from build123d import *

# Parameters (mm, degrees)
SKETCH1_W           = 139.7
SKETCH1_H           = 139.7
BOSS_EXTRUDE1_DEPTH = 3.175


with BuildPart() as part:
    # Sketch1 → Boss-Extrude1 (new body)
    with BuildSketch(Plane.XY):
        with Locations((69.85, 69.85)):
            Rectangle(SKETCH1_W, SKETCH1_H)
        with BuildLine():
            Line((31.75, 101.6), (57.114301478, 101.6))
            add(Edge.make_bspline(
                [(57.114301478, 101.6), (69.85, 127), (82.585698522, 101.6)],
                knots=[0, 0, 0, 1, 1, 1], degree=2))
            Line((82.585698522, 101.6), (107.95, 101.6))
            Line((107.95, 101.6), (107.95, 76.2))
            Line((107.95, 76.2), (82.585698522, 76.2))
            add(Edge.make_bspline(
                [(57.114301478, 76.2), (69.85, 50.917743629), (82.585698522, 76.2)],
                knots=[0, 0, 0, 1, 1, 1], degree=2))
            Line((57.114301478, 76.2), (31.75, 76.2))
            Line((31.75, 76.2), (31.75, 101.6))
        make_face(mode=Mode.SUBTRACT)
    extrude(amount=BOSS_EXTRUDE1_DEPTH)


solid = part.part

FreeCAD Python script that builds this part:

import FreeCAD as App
import Part
import Sketcher
from FreeCAD import Vector
Q = App.Units.Quantity

doc = App.newDocument("Part")
body = doc.addObject("PartDesign::Body", "Body")

sketch1 = body.newObject("Sketcher::SketchObject", "Sketch")
sketch1.AttachmentSupport = (doc.getObject("XY_Plane"), [""])
sketch1.MapMode = "FlatFace"
sketch1.addGeometry([
    Part.LineSegment(Vector(0, 139.7, 0), Vector(0, 0, 0)),
    Part.LineSegment(Vector(0, 0, 0), Vector(139.7, 0, 0)),
    Part.LineSegment(Vector(139.7, 0, 0), Vector(139.7, 139.7, 0)),
    Part.LineSegment(Vector(139.7, 139.7, 0), Vector(0, 139.7, 0)),
    Part.LineSegment(Vector(31.75, 76.2, 0), Vector(31.75, 101.6, 0)),
    Part.LineSegment(Vector(31.75, 101.6, 0), Vector(57.114301, 101.6, 0)),
    Part.BSplineCurve([Vector(57.114301, 101.6, 0), Vector(69.85, 127, 0), Vector(82.585699, 101.6, 0)], [3, 3], [0, 1], False, 2, [1, 1, 1], False),
    Part.LineSegment(Vector(82.585699, 101.6, 0), Vector(107.95, 101.6, 0)),
    Part.LineSegment(Vector(107.95, 101.6, 0), Vector(107.95, 76.2, 0)),
    Part.LineSegment(Vector(107.95, 76.2, 0), Vector(82.585699, 76.2, 0)),
    Part.BSplineCurve([Vector(57.114301, 76.2, 0), Vector(69.85, 50.917744, 0), Vector(82.585699, 76.2, 0)], [3, 3], [0, 1], False, 2, [1, 1, 1], False),
    Part.LineSegment(Vector(57.114301, 76.2, 0), Vector(31.75, 76.2, 0)),
], False)
sketch1.addConstraint([
    Sketcher.Constraint("Block", 6),
    Sketcher.Constraint("Block", 10),
    Sketcher.Constraint("Coincident", 0, 2, 1, 1),
    Sketcher.Constraint("Coincident", 1, 2, 2, 1),
    Sketcher.Constraint("Coincident", 2, 2, 3, 1),
    Sketcher.Constraint("Coincident", 3, 2, 0, 1),
    Sketcher.Constraint("Coincident", 4, 2, 5, 1),
    Sketcher.Constraint("Coincident", 5, 2, 6, 1),
    Sketcher.Constraint("Coincident", 6, 2, 7, 1),
    Sketcher.Constraint("Coincident", 7, 2, 8, 1),
    Sketcher.Constraint("Coincident", 8, 2, 9, 1),
    Sketcher.Constraint("Coincident", 9, 2, 10, 2),
    Sketcher.Constraint("Coincident", 10, 1, 11, 1),
    Sketcher.Constraint("Coincident", 11, 2, 4, 1),
    Sketcher.Constraint("Vertical", 0),
    Sketcher.Constraint("Horizontal", 1),
    Sketcher.Constraint("Vertical", 2),
    Sketcher.Constraint("Horizontal", 3),
    Sketcher.Constraint("Vertical", 4),
    Sketcher.Constraint("Horizontal", 5),
    Sketcher.Constraint("Horizontal", 7),
    Sketcher.Constraint("Vertical", 8),
    Sketcher.Constraint("Horizontal", 9),
    Sketcher.Constraint("Horizontal", 11),
    Sketcher.Constraint("Coincident", 0, 2, -1, 1),
    Sketcher.Constraint("Equal", 5, 7),
    Sketcher.Constraint("Equal", 3, 0),
    Sketcher.Constraint("DistanceX", 1, 1, 1, 2, Q("5.5 in")),
    Sketcher.Constraint("DistanceX", 4, 2, 7, 2, Q("3 in")),
])
pad1 = body.newObject("PartDesign::Pad", "Pad")
pad1.Profile = sketch1
pad1.Length = Q("0.125 in")

doc.recompute()
